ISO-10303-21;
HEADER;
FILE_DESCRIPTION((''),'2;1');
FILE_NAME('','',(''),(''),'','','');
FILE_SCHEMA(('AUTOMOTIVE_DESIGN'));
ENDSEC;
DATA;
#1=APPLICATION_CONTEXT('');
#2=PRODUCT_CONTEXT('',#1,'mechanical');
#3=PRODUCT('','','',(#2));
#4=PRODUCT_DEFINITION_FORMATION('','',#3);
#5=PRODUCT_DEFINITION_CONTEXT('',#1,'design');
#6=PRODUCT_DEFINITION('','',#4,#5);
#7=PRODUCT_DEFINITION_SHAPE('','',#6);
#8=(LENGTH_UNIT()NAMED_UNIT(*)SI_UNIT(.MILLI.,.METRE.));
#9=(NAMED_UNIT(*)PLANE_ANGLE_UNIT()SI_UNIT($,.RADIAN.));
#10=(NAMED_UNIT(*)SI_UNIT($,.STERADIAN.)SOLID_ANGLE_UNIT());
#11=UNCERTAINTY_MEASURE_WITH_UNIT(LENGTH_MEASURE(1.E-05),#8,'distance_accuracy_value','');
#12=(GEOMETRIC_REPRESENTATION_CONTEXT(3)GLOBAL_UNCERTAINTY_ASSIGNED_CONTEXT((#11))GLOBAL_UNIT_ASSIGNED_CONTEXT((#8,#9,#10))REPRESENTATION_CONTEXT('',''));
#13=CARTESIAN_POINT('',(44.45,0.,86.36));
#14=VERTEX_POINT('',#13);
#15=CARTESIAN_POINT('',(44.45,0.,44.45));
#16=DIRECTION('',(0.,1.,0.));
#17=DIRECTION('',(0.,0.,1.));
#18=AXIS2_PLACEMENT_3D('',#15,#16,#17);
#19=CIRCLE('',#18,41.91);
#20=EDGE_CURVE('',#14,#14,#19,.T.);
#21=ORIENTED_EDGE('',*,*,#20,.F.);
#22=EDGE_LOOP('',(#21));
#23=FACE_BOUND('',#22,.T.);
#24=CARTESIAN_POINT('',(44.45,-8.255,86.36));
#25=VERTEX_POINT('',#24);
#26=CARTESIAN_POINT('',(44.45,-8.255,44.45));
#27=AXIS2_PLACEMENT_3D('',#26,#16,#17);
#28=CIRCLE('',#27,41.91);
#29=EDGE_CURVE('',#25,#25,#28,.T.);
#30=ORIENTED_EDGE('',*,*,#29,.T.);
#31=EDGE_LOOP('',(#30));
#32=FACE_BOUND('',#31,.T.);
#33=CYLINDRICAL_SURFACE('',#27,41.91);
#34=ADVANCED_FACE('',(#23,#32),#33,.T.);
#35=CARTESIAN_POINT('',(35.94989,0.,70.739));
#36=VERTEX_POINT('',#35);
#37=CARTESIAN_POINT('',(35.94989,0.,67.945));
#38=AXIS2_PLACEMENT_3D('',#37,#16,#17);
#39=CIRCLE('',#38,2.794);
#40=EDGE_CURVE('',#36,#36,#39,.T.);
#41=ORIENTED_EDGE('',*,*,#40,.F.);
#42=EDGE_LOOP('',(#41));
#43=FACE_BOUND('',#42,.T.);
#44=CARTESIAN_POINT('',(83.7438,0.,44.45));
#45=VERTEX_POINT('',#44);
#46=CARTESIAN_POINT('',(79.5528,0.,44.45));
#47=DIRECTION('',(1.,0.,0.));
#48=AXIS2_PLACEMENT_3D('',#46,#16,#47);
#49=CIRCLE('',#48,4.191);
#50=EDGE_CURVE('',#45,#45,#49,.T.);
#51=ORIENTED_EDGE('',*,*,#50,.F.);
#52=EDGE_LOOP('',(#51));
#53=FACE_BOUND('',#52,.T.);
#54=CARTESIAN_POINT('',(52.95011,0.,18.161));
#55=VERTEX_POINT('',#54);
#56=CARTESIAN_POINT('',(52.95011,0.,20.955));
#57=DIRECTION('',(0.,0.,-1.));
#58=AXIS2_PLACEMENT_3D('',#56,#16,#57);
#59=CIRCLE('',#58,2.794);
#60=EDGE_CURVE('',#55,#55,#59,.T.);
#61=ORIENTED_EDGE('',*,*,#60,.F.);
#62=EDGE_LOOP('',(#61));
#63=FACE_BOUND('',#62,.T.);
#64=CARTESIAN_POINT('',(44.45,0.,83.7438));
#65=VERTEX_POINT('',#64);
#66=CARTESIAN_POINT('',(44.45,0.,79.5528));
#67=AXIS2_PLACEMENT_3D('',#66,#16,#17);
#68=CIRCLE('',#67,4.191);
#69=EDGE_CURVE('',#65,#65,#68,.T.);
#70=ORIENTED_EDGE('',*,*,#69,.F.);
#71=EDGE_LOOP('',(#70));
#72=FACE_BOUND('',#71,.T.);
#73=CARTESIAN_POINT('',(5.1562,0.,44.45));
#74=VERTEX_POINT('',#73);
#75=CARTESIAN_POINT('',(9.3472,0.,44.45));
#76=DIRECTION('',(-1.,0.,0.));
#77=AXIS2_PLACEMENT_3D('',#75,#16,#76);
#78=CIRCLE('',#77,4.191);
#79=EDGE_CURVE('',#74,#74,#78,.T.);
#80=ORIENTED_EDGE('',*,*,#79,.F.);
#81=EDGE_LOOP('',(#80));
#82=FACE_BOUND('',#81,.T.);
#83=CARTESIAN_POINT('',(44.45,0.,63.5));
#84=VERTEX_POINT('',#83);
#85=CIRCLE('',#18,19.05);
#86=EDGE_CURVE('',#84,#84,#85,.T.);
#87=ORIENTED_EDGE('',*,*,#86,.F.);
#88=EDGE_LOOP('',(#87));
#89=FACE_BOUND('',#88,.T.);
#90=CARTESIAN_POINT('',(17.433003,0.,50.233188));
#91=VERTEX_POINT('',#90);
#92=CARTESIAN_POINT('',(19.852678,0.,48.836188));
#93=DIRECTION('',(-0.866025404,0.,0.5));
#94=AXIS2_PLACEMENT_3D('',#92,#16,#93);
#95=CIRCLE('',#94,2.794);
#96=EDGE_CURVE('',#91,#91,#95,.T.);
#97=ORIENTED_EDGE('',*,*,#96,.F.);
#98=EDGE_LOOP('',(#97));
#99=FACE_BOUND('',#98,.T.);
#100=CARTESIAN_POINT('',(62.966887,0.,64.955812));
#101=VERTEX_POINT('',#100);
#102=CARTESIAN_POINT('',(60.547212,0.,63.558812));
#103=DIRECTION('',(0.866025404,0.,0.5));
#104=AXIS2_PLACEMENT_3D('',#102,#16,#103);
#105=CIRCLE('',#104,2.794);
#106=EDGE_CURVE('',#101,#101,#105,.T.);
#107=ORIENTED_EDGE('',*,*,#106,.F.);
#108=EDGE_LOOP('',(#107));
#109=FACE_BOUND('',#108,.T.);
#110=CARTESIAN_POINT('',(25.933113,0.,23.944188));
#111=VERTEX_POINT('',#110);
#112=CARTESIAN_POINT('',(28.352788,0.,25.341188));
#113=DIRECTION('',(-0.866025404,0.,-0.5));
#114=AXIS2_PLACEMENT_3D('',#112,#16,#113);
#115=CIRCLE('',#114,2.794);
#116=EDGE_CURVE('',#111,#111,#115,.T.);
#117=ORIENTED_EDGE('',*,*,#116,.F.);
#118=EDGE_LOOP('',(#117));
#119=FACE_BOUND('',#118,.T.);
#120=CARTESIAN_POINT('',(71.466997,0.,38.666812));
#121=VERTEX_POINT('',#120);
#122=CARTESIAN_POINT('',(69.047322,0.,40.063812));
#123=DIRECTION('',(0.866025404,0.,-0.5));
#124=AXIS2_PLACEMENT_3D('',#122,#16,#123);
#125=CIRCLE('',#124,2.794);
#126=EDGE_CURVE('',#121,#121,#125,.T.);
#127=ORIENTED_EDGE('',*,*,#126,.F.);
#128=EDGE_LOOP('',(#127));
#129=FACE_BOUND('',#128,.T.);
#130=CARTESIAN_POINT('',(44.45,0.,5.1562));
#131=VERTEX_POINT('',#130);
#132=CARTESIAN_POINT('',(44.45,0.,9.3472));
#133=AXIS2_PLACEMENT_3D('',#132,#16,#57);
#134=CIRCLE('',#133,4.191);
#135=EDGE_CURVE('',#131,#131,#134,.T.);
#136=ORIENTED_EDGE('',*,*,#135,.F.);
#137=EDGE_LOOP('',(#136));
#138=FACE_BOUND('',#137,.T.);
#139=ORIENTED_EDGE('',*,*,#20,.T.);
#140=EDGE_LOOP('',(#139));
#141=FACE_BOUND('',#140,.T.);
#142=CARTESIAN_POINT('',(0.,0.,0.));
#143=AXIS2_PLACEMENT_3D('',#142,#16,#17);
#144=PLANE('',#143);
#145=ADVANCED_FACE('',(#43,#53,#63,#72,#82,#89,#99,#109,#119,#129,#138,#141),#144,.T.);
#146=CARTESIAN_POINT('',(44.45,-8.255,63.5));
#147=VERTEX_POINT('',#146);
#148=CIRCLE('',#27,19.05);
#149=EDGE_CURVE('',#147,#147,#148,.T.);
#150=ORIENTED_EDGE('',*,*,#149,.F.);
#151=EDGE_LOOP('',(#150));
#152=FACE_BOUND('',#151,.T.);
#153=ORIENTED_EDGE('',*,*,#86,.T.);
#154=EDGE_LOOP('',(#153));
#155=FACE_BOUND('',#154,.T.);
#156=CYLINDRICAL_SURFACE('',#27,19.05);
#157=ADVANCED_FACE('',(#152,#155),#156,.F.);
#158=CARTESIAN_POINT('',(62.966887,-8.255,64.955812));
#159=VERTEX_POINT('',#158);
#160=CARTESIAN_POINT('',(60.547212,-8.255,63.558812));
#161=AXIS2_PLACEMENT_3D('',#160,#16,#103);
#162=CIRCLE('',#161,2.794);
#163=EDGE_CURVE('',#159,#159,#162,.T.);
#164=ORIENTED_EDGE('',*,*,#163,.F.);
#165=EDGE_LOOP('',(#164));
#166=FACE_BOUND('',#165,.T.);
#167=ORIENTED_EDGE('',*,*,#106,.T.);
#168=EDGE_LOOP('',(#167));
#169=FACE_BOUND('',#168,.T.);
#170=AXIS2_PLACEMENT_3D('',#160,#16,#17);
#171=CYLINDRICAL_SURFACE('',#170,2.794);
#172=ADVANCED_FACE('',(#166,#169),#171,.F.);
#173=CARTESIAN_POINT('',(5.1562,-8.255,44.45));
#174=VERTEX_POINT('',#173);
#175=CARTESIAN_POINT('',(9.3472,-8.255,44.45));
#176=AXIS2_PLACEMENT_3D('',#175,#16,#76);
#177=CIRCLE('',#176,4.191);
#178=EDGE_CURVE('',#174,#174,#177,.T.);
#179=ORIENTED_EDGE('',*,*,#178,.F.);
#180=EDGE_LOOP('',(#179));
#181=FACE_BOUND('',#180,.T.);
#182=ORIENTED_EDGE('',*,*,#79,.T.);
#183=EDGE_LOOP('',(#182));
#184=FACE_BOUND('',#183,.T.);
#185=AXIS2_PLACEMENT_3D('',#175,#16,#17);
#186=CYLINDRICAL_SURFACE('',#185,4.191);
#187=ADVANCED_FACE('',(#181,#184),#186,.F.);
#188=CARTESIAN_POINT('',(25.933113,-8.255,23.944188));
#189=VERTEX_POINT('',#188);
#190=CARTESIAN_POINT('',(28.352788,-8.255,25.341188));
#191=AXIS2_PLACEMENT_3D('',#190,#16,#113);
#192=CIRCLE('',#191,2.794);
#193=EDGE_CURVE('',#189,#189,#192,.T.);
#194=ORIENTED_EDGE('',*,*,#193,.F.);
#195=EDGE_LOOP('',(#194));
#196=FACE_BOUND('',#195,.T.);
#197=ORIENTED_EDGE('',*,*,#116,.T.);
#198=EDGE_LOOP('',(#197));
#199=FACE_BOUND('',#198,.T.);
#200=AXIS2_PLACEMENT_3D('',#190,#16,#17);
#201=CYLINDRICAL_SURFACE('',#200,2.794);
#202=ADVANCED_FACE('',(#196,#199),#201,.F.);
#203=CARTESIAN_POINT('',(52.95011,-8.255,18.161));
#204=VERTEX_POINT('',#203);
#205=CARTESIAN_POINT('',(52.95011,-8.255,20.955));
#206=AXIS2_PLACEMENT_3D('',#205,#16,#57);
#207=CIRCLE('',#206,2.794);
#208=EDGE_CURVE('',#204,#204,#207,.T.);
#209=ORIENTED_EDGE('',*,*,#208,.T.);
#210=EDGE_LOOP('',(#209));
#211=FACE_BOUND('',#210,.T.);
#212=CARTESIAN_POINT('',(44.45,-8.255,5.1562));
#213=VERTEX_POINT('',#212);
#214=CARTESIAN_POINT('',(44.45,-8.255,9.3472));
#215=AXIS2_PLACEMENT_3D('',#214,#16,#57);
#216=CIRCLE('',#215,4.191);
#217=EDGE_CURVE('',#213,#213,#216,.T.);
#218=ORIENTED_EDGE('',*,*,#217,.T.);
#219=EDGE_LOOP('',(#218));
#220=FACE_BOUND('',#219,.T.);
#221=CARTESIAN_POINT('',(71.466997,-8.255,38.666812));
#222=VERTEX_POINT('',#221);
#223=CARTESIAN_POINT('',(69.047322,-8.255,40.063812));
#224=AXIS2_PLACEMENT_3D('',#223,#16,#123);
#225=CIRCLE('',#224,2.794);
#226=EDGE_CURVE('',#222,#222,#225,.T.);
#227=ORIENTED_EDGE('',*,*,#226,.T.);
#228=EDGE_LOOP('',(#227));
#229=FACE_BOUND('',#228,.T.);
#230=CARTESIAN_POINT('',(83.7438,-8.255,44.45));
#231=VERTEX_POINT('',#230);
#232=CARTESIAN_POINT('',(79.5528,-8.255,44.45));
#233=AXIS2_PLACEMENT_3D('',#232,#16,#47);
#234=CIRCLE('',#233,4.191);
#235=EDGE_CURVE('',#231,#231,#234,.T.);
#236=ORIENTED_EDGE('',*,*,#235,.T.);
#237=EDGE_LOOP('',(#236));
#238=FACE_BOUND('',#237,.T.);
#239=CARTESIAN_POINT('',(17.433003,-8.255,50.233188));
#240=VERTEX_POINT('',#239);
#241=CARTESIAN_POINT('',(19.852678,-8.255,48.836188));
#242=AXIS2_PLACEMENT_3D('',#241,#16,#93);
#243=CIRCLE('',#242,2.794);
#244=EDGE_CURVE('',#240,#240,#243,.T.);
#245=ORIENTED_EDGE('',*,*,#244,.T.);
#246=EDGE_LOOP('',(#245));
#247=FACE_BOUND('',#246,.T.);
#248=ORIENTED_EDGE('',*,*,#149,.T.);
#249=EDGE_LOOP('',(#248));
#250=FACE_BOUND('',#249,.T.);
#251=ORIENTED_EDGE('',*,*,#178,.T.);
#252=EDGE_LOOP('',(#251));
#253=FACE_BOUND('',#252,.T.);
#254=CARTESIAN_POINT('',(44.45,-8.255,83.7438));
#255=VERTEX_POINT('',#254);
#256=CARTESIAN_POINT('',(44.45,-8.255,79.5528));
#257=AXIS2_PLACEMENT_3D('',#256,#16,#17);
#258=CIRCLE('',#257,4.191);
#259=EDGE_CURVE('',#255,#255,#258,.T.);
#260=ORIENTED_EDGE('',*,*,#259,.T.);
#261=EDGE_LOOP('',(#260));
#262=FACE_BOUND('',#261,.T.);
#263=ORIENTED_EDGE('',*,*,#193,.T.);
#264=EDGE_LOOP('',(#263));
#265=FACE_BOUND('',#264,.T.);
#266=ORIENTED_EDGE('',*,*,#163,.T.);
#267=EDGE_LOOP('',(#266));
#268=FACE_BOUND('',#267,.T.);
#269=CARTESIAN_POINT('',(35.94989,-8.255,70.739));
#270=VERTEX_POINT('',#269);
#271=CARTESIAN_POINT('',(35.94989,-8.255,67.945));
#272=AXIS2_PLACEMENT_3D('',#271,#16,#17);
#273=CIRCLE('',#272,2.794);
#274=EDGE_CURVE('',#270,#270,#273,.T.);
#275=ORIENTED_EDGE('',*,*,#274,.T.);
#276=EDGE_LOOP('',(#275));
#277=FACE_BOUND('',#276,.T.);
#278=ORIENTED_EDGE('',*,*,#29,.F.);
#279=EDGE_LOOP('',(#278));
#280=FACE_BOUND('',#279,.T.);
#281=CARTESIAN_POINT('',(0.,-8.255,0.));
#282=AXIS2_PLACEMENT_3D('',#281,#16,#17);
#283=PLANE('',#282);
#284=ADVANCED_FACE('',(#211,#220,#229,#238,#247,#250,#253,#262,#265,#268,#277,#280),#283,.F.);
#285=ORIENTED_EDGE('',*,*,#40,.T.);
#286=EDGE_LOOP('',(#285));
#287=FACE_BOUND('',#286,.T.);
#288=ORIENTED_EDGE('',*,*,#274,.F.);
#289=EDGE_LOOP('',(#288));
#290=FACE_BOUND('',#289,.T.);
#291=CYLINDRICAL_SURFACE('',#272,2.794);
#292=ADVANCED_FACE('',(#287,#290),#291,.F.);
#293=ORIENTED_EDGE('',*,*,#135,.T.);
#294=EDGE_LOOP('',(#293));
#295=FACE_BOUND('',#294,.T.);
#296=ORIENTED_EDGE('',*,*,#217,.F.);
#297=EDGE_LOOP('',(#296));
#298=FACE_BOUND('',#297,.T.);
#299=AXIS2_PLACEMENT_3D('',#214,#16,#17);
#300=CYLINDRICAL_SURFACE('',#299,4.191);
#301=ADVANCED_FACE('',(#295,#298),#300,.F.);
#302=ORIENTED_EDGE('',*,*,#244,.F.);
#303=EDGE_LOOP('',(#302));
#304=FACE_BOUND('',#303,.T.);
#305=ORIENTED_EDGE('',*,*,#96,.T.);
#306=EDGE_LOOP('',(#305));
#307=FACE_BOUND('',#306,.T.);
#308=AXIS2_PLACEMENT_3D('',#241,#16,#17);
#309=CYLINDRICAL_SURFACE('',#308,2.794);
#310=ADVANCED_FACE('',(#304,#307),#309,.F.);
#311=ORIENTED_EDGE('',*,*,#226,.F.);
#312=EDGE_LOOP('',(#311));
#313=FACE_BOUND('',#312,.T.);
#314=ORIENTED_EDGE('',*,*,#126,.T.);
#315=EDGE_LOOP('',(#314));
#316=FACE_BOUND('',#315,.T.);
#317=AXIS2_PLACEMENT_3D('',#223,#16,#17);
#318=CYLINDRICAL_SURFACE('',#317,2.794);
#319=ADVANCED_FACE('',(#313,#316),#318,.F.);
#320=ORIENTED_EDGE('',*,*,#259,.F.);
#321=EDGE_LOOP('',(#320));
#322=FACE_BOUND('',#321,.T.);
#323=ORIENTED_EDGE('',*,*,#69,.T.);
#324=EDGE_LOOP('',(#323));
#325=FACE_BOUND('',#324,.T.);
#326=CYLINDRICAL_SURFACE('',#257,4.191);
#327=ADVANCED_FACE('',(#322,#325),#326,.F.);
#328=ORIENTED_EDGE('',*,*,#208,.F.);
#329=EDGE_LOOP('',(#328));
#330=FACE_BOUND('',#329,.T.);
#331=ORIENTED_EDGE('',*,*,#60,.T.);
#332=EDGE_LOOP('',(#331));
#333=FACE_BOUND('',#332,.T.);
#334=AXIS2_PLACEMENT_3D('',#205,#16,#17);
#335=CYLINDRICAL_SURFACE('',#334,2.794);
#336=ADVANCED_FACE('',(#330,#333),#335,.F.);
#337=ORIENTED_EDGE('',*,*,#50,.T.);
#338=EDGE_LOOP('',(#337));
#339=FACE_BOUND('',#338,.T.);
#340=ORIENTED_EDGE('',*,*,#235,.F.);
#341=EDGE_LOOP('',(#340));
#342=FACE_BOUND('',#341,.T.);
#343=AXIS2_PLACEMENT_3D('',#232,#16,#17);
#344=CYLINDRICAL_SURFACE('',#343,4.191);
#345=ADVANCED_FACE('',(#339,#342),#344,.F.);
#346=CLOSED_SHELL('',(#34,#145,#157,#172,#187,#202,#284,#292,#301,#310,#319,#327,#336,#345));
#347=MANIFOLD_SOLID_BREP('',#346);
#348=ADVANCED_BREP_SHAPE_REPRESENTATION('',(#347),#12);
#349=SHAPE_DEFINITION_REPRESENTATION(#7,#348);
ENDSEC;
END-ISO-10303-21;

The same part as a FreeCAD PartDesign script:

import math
import FreeCAD as App
import Part
import Sketcher
Q = App.Units.Quantity

doc = App.newDocument("Part")
body = doc.addObject("PartDesign::Body", "Body")

# Sketch on XZ plane
sketch1 = body.newObject("Sketcher::SketchObject", "Sketch")
sketch1.AttachmentSupport = (doc.getObject("XZ_Plane"), [""])
sketch1.MapMode = "FlatFace"
sketch1.addGeometry(Part.LineSegment(App.Vector(0, 0, 0), App.Vector(0, 89, 0)), False)
sketch1.addGeometry(Part.LineSegment(App.Vector(0, 89, 0), App.Vector(89, 89, 0)), False)
sketch1.addGeometry(Part.LineSegment(App.Vector(89, 89, 0), App.Vector(89, 0, 0)), False)
sketch1.addGeometry(Part.LineSegment(App.Vector(89, 0, 0), App.Vector(0, 0, 0)), False)
sketch1.addConstraint(Sketcher.Constraint("Coincident", 0, 2, 1, 1))
sketch1.addConstraint(Sketcher.Constraint("Coincident", 1, 2, 2, 1))
sketch1.addConstraint(Sketcher.Constraint("Coincident", 2, 2, 3, 1))
sketch1.addConstraint(Sketcher.Constraint("Coincident", 3, 2, 0, 1))
sketch1.addConstraint(Sketcher.Constraint("Vertical", 0))
sketch1.addConstraint(Sketcher.Constraint("Horizontal", 1))
sketch1.addConstraint(Sketcher.Constraint("Vertical", 2))
sketch1.addConstraint(Sketcher.Constraint("Horizontal", 3))
sketch1.addConstraint(Sketcher.Constraint("Coincident", 3, 2, -1, 1))
sketch1.addConstraint(Sketcher.Constraint("Equal", 3, 0))
sketch1.addConstraint(Sketcher.Constraint("DistanceX", 1, 1, 1, 2, Q("3.5 in")))
pad1 = body.newObject("PartDesign::Pad", "Pad")
pad1.Profile = sketch1
pad1.Length = Q("0.325 in")

# Sketch on XZ plane
sketch2 = body.newObject("Sketcher::SketchObject", "Sketch001")
sketch2.AttachmentSupport = (doc.getObject("XZ_Plane"), [""])
sketch2.MapMode = "FlatFace"
sketch2.addGeometry(Part.LineSegment(App.Vector(0, 0, 0), App.Vector(0, 89, 0)), False)
sketch2.addGeometry(Part.LineSegment(App.Vector(0, 89, 0), App.Vector(89, 89, 0)), False)
sketch2.addGeometry(Part.LineSegment(App.Vector(89, 89, 0), App.Vector(89, 0, 0)), False)
sketch2.addGeometry(Part.LineSegment(App.Vector(89, 0, 0), App.Vector(0, 0, 0)), False)
sketch2.addGeometry(Part.Circle(App.Vector(44, 44, 0), App.Vector(0, 0, 1), 42), False)
sketch2.addConstraint(Sketcher.Constraint("Coincident", 0, 2, 1, 1))
sketch2.addConstraint(Sketcher.Constraint("Coincident", 1, 2, 2, 1))
sketch2.addConstraint(Sketcher.Constraint("Coincident", 2, 2, 3, 1))
sketch2.addConstraint(Sketcher.Constraint("Coincident", 3, 2, 0, 1))
sketch2.addConstraint(Sketcher.Constraint("Vertical", 0))
sketch2.addConstraint(Sketcher.Constraint("Horizontal", 1))
sketch2.addConstraint(Sketcher.Constraint("Vertical", 2))
sketch2.addConstraint(Sketcher.Constraint("Horizontal", 3))
sketch2.addConstraint(Sketcher.Constraint("Coincident", 3, 2, -1, 1))
sketch2.addConstraint(Sketcher.Constraint("Equal", 3, 0))
sketch2.addConstraint(Sketcher.Constraint("Diameter", 4, Q("3.3 in")))
sketch2.addConstraint(Sketcher.Constraint("DistanceX", 1, 1, 1, 2, Q("3.5 in")))
sketch2.addConstraint(Sketcher.Constraint("DistanceX", -1, 1, 4, 3, Q("1.75 in")))
sketch2.addConstraint(Sketcher.Constraint("DistanceY", -1, 1, 4, 3, Q("1.75 in")))
pocket1 = body.newObject("PartDesign::Pocket", "Pocket")
pocket1.Profile = sketch2
pocket1.Length = Q("0.325 in")
pocket1.Reversed = True

# Sketch on XZ plane
sketch3 = body.newObject("Sketcher::SketchObject", "Sketch002")
sketch3.AttachmentSupport = (doc.getObject("XZ_Plane"), [""])
sketch3.MapMode = "FlatFace"
sketch3.addGeometry(Part.Circle(App.Vector(44.5, 79.6, 0), App.Vector(0, 0, 1), 4.2), False)
sketch3.addConstraint(Sketcher.Constraint("Diameter", 0, Q("0.33 in")))
sketch3.addConstraint(Sketcher.Constraint("DistanceX", -1, 1, 0, 3, Q("1.75 in")))
sketch3.addConstraint(Sketcher.Constraint("DistanceY", -1, 1, 0, 3, Q("3.132 in")))
pocket2 = body.newObject("PartDesign::Pocket", "Pocket001")
pocket2.Profile = sketch3
pocket2.Length = Q("0.325 in")
pocket2.Reversed = True
doc.recompute()

datumline = body.newObject("PartDesign::Line", "DatumLine")
datumline.Placement = App.Placement(App.Vector(44.45, 0, 44.45), App.Rotation(App.Vector(0, 0, 1), App.Vector(0, 1, 0)))
polarpattern = body.newObject("PartDesign::PolarPattern", "PolarPattern")
polarpattern.Originals = [pocket2]
polarpattern.Axis = (datumline, [""])
polarpattern.Angle = 360
polarpattern.Occurrences = 4
body.Tip = polarpattern

# Sketch on XZ plane
sketch4 = body.newObject("Sketcher::SketchObject", "Sketch003")
sketch4.AttachmentSupport = (doc.getObject("XZ_Plane"), [""])
sketch4.MapMode = "FlatFace"
sketch4.addGeometry(Part.ArcOfCircle(Part.Circle(App.Vector(35.9, 67.9, 0), App.Vector(0, 0, 1), 2.8), math.radians(-70), math.radians(0)), False)
sketch4.addGeometry(Part.ArcOfCircle(Part.Circle(App.Vector(35.9, 67.9, 0), App.Vector(0, 0, 1), 2.8), math.radians(110), math.radians(290)), False)
sketch4.addGeometry(Part.ArcOfCircle(Part.Circle(App.Vector(35.9, 67.9, 0), App.Vector(0, 0, 1), 2.8), math.radians(0), math.radians(110)), False)
sketch4.addConstraint(Sketcher.Constraint("Tangent", 0, 1, 1, 2))
sketch4.addConstraint(Sketcher.Constraint("Tangent", 1, 1, 2, 2))
sketch4.addConstraint(Sketcher.Constraint("Tangent", 2, 1, 0, 2))
sketch4.addConstraint(Sketcher.Constraint("Horizontal", 1, 3, 2, 1))
sketch4.addConstraint(Sketcher.Constraint("Radius", 0, Q("0.11 in")))
sketch4.addConstraint(Sketcher.Constraint("DistanceY", -1, 1, 0, 3, Q("2.675 in")))
sketch4.addConstraint(Sketcher.Constraint("DistanceX", -1, 1, 0, 3, 35.94989))
sketch4.addConstraint(Sketcher.Constraint("DistanceX", -1, 1, 0, 1, 36.90042))
sketch4.addConstraint(Sketcher.Constraint("DistanceX", -1, 1, 1, 1, 34.99936))
pocket3 = body.newObject("PartDesign::Pocket", "Pocket002")
pocket3.Profile = sketch4
pocket3.Length = Q("0.325 in")
pocket3.Reversed = True
doc.recompute()

datumline2 = body.newObject("PartDesign::Line", "DatumLine001")
datumline2.Placement = App.Placement(App.Vector(44.45, 0, 44.45), App.Rotation(App.Vector(0, 0, 1), App.Vector(0, 1, 0)))
polarpattern2 = body.newObject("PartDesign::PolarPattern", "PolarPattern001")
polarpattern2.Originals = [pocket3]
polarpattern2.Axis = (datumline2, [""])
polarpattern2.Angle = 360
polarpattern2.Occurrences = 6
body.Tip = polarpattern2

# Sketch on XZ plane
sketch5 = body.newObject("Sketcher::SketchObject", "Sketch004")
sketch5.AttachmentSupport = (doc.getObject("XZ_Plane"), [""])
sketch5.MapMode = "FlatFace"
sketch5.addGeometry(Part.Circle(App.Vector(44, 44, 0), App.Vector(0, 0, 1), 19), False)
sketch5.addConstraint(Sketcher.Constraint("Diameter", 0, Q("1.5 in")))
sketch5.addConstraint(Sketcher.Constraint("DistanceX", -1, 1, 0, 3, Q("1.75 in")))
sketch5.addConstraint(Sketcher.Constraint("DistanceY", -1, 1, 0, 3, Q("1.75 in")))
pocket4 = body.newObject("PartDesign::Pocket", "Pocket003")
pocket4.Profile = sketch5
pocket4.Length = Q("0.325 in")
pocket4.Reversed = True

doc.recompute()
